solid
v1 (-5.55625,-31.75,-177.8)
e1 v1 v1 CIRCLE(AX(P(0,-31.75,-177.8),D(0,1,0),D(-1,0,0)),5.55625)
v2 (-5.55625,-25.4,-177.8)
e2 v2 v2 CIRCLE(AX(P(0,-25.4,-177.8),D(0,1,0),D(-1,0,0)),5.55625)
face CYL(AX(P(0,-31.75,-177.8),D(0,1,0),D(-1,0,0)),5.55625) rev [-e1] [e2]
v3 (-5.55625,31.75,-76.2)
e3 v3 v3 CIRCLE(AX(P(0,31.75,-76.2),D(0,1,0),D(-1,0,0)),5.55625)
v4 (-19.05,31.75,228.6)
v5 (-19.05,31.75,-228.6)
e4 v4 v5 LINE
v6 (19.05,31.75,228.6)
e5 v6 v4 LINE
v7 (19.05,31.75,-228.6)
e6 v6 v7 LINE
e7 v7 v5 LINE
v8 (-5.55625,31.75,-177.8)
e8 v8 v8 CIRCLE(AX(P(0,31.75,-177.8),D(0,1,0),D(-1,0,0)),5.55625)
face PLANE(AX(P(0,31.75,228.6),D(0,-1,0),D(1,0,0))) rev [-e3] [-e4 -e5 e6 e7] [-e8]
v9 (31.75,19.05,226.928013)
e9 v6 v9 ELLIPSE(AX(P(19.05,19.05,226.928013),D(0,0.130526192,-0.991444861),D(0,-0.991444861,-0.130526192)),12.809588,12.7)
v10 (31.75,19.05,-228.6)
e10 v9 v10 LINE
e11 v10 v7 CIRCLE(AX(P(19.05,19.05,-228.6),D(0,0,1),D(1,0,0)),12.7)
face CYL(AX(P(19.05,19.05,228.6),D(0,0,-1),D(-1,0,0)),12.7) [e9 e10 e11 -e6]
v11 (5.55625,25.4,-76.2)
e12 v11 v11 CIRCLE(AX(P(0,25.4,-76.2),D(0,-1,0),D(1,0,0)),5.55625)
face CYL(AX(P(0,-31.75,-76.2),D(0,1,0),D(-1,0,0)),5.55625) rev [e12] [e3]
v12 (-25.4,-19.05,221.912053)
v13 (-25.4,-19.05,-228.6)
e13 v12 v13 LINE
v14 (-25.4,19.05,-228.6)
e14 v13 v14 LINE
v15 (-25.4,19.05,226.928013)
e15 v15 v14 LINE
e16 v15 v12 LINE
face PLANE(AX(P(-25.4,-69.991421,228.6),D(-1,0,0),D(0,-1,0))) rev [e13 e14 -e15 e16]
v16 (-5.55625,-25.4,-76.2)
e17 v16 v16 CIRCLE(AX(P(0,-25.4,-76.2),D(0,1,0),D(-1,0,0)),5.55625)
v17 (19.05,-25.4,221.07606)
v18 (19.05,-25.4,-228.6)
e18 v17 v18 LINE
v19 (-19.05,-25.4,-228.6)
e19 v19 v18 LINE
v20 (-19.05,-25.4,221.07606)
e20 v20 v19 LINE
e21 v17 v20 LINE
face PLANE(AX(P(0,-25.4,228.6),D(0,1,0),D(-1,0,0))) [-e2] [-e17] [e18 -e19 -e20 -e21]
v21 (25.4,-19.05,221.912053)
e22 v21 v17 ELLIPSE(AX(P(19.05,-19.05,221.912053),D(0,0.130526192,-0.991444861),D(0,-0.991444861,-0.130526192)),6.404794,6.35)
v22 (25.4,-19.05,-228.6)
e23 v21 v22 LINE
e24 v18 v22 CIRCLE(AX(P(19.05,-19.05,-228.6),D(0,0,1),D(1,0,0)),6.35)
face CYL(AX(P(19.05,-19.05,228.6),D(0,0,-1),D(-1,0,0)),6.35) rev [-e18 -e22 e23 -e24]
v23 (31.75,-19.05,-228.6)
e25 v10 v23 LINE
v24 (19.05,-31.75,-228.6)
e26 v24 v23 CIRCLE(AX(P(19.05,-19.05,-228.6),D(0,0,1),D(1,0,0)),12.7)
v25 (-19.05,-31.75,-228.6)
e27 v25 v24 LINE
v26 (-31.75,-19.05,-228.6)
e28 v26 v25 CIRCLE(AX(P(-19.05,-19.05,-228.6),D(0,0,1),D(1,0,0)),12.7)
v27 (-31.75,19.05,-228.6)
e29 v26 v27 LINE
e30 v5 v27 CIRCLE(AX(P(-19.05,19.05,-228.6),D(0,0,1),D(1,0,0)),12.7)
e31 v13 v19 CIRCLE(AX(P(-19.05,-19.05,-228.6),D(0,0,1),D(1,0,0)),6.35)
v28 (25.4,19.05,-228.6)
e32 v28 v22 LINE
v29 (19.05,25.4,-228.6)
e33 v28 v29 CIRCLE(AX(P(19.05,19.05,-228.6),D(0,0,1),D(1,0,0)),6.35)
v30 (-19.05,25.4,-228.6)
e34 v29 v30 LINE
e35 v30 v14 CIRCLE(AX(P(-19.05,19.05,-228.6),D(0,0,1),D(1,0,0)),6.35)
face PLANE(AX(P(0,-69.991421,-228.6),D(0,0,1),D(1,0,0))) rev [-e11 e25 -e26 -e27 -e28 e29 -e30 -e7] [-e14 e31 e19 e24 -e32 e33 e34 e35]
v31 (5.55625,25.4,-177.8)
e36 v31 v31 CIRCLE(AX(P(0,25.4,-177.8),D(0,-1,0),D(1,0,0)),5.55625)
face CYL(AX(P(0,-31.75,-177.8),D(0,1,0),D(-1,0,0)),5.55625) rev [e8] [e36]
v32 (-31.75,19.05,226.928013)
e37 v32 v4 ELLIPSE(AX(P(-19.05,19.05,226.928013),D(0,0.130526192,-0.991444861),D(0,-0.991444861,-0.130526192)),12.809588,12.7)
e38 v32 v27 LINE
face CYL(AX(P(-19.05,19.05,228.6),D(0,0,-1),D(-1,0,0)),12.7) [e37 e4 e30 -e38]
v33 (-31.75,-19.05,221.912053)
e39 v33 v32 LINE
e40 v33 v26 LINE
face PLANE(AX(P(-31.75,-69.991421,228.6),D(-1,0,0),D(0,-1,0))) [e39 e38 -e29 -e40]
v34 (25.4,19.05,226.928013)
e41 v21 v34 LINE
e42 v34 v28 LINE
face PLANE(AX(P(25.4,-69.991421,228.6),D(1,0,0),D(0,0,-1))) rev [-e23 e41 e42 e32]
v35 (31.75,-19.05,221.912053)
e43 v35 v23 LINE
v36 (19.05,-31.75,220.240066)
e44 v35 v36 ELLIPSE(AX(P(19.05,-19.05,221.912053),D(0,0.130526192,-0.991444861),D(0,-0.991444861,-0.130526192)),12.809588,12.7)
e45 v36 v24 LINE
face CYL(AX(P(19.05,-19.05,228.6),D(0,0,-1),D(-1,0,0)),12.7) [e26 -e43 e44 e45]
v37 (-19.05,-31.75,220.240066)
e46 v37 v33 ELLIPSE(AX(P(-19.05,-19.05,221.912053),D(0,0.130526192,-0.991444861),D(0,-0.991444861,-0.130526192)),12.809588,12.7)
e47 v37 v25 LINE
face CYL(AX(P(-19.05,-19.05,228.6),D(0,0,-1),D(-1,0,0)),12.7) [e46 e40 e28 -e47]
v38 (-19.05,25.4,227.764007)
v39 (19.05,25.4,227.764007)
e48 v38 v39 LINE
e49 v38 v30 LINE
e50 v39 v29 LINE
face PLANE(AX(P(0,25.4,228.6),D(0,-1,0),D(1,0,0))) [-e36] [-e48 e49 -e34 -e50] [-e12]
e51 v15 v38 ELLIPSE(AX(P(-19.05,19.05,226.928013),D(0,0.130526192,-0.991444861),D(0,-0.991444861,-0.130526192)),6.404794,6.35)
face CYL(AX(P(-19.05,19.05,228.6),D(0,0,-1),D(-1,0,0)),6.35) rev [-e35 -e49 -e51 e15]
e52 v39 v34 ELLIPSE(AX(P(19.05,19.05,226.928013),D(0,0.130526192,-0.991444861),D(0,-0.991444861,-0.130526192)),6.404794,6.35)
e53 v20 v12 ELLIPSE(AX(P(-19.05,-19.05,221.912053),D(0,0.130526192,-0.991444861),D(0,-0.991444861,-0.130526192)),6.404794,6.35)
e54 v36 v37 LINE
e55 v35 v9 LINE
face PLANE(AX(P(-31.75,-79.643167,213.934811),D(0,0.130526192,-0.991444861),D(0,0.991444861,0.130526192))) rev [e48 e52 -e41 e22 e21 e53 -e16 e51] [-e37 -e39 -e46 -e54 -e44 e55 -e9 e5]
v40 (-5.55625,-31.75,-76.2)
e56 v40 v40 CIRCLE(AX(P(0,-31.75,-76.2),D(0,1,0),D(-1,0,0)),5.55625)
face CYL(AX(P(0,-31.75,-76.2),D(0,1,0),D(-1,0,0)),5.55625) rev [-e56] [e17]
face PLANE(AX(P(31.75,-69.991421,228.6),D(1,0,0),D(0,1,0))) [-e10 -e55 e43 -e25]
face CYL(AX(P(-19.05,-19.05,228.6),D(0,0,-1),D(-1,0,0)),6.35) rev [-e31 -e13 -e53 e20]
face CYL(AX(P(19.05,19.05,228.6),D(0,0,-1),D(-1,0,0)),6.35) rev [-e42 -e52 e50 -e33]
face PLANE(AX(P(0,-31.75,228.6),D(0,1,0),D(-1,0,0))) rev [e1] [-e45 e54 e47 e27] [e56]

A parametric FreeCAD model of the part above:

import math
import FreeCAD as App
import Part
import Sketcher
Q = App.Units.Quantity


def add_polygon(sketch, points):
    """Adds a closed chain of lines whose ends are joined by coincident constraints."""
    first, n = sketch.GeometryCount, len(points)
    for a, b in zip(points, points[1:] + points[:1]):
        sketch.addGeometry(Part.LineSegment(App.Vector(*a, 0), App.Vector(*b, 0)), False)
    for i in range(n):
        sketch.addConstraint(Sketcher.Constraint("Coincident", first + i, 2, first + (i + 1) % n, 1))

doc = App.newDocument("Part")
params = doc.addObject("Spreadsheet::Sheet", "Params")
for row, (alias, value) in enumerate([
    ("sketch1_radius", "0.5 in"),
    ("sketch1_radius2", "0.25 in"),
    ("sketch1_width", "1.5 in"),
    ("pad1_length", "18 in"),
    ("sketch2_diameter", "0.4375 in"),
], start=1):
    params.set(f"A{row}", alias)
    params.set(f"B{row}", "=" + value)
    params.setAlias(f"B{row}", alias)

body = doc.addObject("PartDesign::Body", "Body")

# Sketch on XY plane
sketch1 = body.newObject("Sketcher::SketchObject", "Sketch")
sketch1.AttachmentSupport = (doc.getObject("XY_Plane"), [""])
sketch1.MapMode = "FlatFace"
sketch1.addGeometry([
    Part.LineSegment(App.Vector(19.05, 31.75, 0), App.Vector(-19.05, 31.75, 0)),  # 0
    Part.ArcOfCircle(Part.Circle(App.Vector(-19.05, 19.05, 0), App.Vector(0, 0, 1), 12.7), math.radians(90), math.radians(180)),  # 1
    Part.LineSegment(App.Vector(-31.75, 19.05, 0), App.Vector(-31.75, -19.05, 0)),  # 2
    Part.ArcOfCircle(Part.Circle(App.Vector(-19.05, -19.05, 0), App.Vector(0, 0, 1), 12.7), math.radians(180), math.radians(270)),  # 3
    Part.LineSegment(App.Vector(-19.05, -31.75, 0), App.Vector(19.05, -31.75, 0)),  # 4
    Part.ArcOfCircle(Part.Circle(App.Vector(19.05, -19.05, 0), App.Vector(0, 0, 1), 12.7), math.radians(-90), math.radians(0)),  # 5
    Part.LineSegment(App.Vector(31.75, -19.05, 0), App.Vector(31.75, 19.05, 0)),  # 6
    Part.ArcOfCircle(Part.Circle(App.Vector(19.05, 19.05, 0), App.Vector(0, 0, 1), 12.7), math.radians(0), math.radians(90)),  # 7
    Part.ArcOfCircle(Part.Circle(App.Vector(-19.05, -19.05, 0), App.Vector(0, 0, 1), 6.35), math.radians(180), math.radians(270)),  # 8
    Part.LineSegment(App.Vector(-25.4, -19.05, 0), App.Vector(-25.4, 19.05, 0)),  # 9
    Part.ArcOfCircle(Part.Circle(App.Vector(-19.05, 19.05, 0), App.Vector(0, 0, 1), 6.35), math.radians(90), math.radians(180)),  # 10
    Part.LineSegment(App.Vector(-19.05, 25.4, 0), App.Vector(19.05, 25.4, 0)),  # 11
    Part.ArcOfCircle(Part.Circle(App.Vector(19.05, 19.05, 0), App.Vector(0, 0, 1), 6.35), math.radians(0), math.radians(90)),  # 12
    Part.LineSegment(App.Vector(25.4, 19.05, 0), App.Vector(25.4, -19.05, 0)),  # 13
    Part.ArcOfCircle(Part.Circle(App.Vector(19.05, -19.05, 0), App.Vector(0, 0, 1), 6.35), math.radians(-90), math.radians(0)),  # 14
    Part.LineSegment(App.Vector(19.05, -25.4, 0), App.Vector(-19.05, -25.4, 0)),  # 15
], False)
sketch1.addConstraint([
    Sketcher.Constraint("Tangent", 0, 2, 1, 1),
    Sketcher.Constraint("Tangent", 1, 2, 2, 1),
    Sketcher.Constraint("Tangent", 2, 2, 3, 1),
    Sketcher.Constraint("Tangent", 3, 2, 4, 1),
    Sketcher.Constraint("Tangent", 4, 2, 5, 1),
    Sketcher.Constraint("Tangent", 5, 2, 6, 1),
    Sketcher.Constraint("Tangent", 6, 2, 7, 1),
    Sketcher.Constraint("Tangent", 7, 2, 0, 1),
    Sketcher.Constraint("Tangent", 8, 1, 9, 1),
    Sketcher.Constraint("Tangent", 9, 2, 10, 2),
    Sketcher.Constraint("Tangent", 10, 1, 11, 1),
    Sketcher.Constraint("Tangent", 11, 2, 12, 2),
    Sketcher.Constraint("Tangent", 12, 1, 13, 1),
    Sketcher.Constraint("Tangent", 13, 2, 14, 2),
    Sketcher.Constraint("Tangent", 14, 1, 15, 1),
    Sketcher.Constraint("Tangent", 15, 2, 8, 2),
    Sketcher.Constraint("Horizontal", 0),
    Sketcher.Constraint("Vertical", 2),
    Sketcher.Constraint("Horizontal", 4),
    Sketcher.Constraint("Vertical", 6),
    Sketcher.Constraint("Vertical", 9),
    Sketcher.Constraint("Horizontal", 11),
    Sketcher.Constraint("Vertical", 13),
    Sketcher.Constraint("Horizontal", 15),
    Sketcher.Constraint("Coincident", 8, 3, 3, 3),
    Sketcher.Constraint("Coincident", 10, 3, 1, 3),
    Sketcher.Constraint("Coincident", 12, 3, 7, 3),
    Sketcher.Constraint("Equal", 1, 3),
    Sketcher.Constraint("Equal", 3, 5),
    Sketcher.Constraint("Equal", 5, 7),
    Sketcher.Constraint("Equal", 12, 14),
    Sketcher.Constraint("Symmetric", 1, 3, 5, 3, -1, 1),
    Sketcher.Constraint("Equal", 15, 2),
    Sketcher.Constraint("Radius", 1, Q("0.5 in")),
    Sketcher.Constraint("Radius", 8, Q("0.25 in")),
    Sketcher.Constraint("DistanceX", 0, 2, 0, 1, Q("1.5 in")),
])
sketch1.setExpression("Constraints[33]", "Params.sketch1_radius")
sketch1.setExpression("Constraints[34]", "Params.sketch1_radius2")
sketch1.setExpression("Constraints[35]", "Params.sketch1_width")
pad1 = body.newObject("PartDesign::Pad", "Pad")
pad1.Profile = sketch1
pad1.setExpression("Length", "Params.pad1_length")
pad1.Midplane = True

# Sketch on XZ plane
sketch2 = body.newObject("Sketcher::SketchObject", "Sketch001")
sketch2.AttachmentSupport = (doc.getObject("XZ_Plane"), [""])
sketch2.MapMode = "FlatFace"
sketch2.AttachmentOffset = App.Placement(App.Vector(0, 0, -1.25 * 25.4), App.Rotation())
sketch2.addGeometry([
    Part.Circle(App.Vector(0, -177.8, 0), App.Vector(0, 0, 1), 5.55625),
    Part.Circle(App.Vector(0, -76.2, 0), App.Vector(0, 0, 1), 5.55625),
], False)
sketch2.addConstraint([
    Sketcher.Constraint("Equal", 0, 1),
    Sketcher.Constraint("PointOnObject", 0, 3, -2),
    Sketcher.Constraint("PointOnObject", 1, 3, -2),
    Sketcher.Constraint("Diameter", 0, Q("0.4375 in")),
    Sketcher.Constraint("DistanceY", 0, 3, -1, 1, Q("7 in")),
    Sketcher.Constraint("DistanceY", 1, 3, -1, 1, Q("3 in")),
])
sketch2.setExpression("Constraints[3]", "Params.sketch2_diameter")
pocket1 = body.newObject("PartDesign::Pocket", "Pocket")
pocket1.Profile = sketch2
pocket1.Type = "ThroughAll"
pocket1.Reversed = True

# Sketch on YZ plane
sketch3 = body.newObject("Sketcher::SketchObject", "Sketch002")
sketch3.AttachmentSupport = (doc.getObject("YZ_Plane"), [""])
sketch3.MapMode = "FlatFace"
sketch3.AttachmentOffset = App.Placement(App.Vector(0, 0, 1.25 * 25.4), App.Rotation())
add_polygon(sketch3, [(-114.266944, 228.6), (-114.266944, 209.376505), (-19.05, 221.912053), (19.05, 226.928013), (31.75, 228.6)])  # lines 0-4
sketch3.addConstraint([
    Sketcher.Constraint("Vertical", 0),
    Sketcher.Constraint("Horizontal", 4),
    Sketcher.Constraint("Parallel", 1, 2),
    Sketcher.Constraint("Parallel", 2, 3),
    Sketcher.Constraint("DistanceY", -1, 1, 3, 2, Q("9 in")),
    Sketcher.Constraint("DistanceX", 1, 2, 3, 2, Q("2 in")),
    Sketcher.Constraint("Angle", 1, Q("7.5 deg")),
    Sketcher.Constraint("DistanceX", 1, 2, 2, 2, Q("1.5 in")),
    Sketcher.Constraint("DistanceX", 1, 2, -1, 1, Q("0.75 in")),
    Sketcher.Constraint("DistanceX", 4, 2, 4, 1, 146.016944),
])
pocket2 = body.newObject("PartDesign::Pocket", "Pocket001")
pocket2.Profile = sketch3
pocket2.Type = "ThroughAll"

doc.recompute()
